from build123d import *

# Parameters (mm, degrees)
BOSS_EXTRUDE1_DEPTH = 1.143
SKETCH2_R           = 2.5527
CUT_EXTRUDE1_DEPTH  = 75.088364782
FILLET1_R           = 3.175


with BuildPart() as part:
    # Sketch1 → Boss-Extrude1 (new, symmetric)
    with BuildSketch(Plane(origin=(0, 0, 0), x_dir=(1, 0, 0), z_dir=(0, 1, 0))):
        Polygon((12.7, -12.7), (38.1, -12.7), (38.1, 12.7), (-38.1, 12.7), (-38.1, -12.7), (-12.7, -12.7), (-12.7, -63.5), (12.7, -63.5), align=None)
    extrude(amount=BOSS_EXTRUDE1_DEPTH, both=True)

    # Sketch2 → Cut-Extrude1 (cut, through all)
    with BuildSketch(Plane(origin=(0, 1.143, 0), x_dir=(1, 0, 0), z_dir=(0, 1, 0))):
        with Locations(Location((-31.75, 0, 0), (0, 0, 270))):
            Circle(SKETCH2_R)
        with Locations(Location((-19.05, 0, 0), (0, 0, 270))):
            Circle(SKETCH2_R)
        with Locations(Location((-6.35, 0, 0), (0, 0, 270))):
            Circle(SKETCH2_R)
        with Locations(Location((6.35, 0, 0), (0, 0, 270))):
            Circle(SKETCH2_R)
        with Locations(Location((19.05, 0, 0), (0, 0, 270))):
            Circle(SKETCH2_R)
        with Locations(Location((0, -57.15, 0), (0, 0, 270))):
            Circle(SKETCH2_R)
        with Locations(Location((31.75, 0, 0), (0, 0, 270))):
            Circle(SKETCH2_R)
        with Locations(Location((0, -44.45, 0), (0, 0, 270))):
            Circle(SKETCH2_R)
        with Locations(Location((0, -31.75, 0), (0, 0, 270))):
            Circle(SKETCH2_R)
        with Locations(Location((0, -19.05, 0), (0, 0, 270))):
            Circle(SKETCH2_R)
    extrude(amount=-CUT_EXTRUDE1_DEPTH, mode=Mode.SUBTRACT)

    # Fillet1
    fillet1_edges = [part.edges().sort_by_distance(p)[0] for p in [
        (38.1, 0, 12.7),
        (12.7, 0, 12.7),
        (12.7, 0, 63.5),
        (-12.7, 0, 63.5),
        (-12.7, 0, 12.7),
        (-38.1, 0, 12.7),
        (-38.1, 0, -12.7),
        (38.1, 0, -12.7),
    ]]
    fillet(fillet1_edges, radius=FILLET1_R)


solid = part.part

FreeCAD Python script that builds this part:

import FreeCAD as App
import Part
import Sketcher

V = App.Vector
Q = App.Units.Quantity


def edges_at(feature, points):
    """Names of the edges that pass closest to the given points."""
    edges = feature.Shape.Edges
    near = lambda p: min(range(len(edges)), key=lambda i: edges[i].distToShape(Part.Vertex(*p))[0])
    return sorted({f"Edge{near(p) + 1}" for p in points})

doc = App.newDocument("Part")
body = doc.addObject("PartDesign::Body", "Body")

# Sketch on XZ plane
sketch1 = doc.addObject("Sketcher::SketchObject", "Sketch")
body.addObject(sketch1)
sketch1.AttachmentSupport = (doc.XZ_Plane, [""])
sketch1.MapMode = "FlatFace"
sketch1.addGeometry([
    Part.LineSegment(V(13, 13, 0), V(38, 13, 0)),  # 0
    Part.LineSegment(V(38, 13, 0), V(38, -13, 0)),  # 1
    Part.LineSegment(V(38, -13, 0), V(-38, -13, 0)),  # 2
    Part.LineSegment(V(-38, -13, 0), V(-38, 13, 0)),  # 3
    Part.LineSegment(V(-38, 13, 0), V(-13, 13, 0)),  # 4
    Part.LineSegment(V(-13, 13, 0), V(-13, 64, 0)),  # 5
    Part.LineSegment(V(-13, 64, 0), V(13, 64, 0)),  # 6
    Part.LineSegment(V(13, 64, 0), V(13, 13, 0)),  # 7
], False)
sketch1.addConstraint([
    Sketcher.Constraint("Coincident", 0, 2, 1, 1),
    Sketcher.Constraint("Coincident", 1, 2, 2, 1),
    Sketcher.Constraint("Coincident", 2, 2, 3, 1),
    Sketcher.Constraint("Coincident", 3, 2, 4, 1),
    Sketcher.Constraint("Coincident", 4, 2, 5, 1),
    Sketcher.Constraint("Coincident", 5, 2, 6, 1),
    Sketcher.Constraint("Coincident", 6, 2, 7, 1),
    Sketcher.Constraint("Coincident", 7, 2, 0, 1),
    Sketcher.Constraint("Horizontal", 0),
    Sketcher.Constraint("Vertical", 1),
    Sketcher.Constraint("Horizontal", 2),
    Sketcher.Constraint("Vertical", 3),
    Sketcher.Constraint("Horizontal", 4),
    Sketcher.Constraint("Vertical", 5),
    Sketcher.Constraint("Horizontal", 6),
    Sketcher.Constraint("Vertical", 7),
    Sketcher.Constraint("Symmetric", 0, 2, 2, 2, -1, 1),
    Sketcher.Constraint("Symmetric", 4, 2, 7, 2, -2),
    Sketcher.Constraint("Equal", 4, 6),
    Sketcher.Constraint("Equal", 6, 1),
    Sketcher.Constraint("DistanceX", 0, 1, 0, 2, Q("1 in")),
    Sketcher.Constraint("DistanceY", 5, 1, 5, 2, Q("2 in")),
])
pad1 = doc.addObject("PartDesign::Pad", "Pad")
body.addObject(pad1)
pad1.Profile = sketch1
pad1.Length = Q("0.09 in")
pad1.Midplane = True

# Sketch on XZ plane
sketch2 = doc.addObject("Sketcher::SketchObject", "Sketch001")
body.addObject(sketch2)
sketch2.AttachmentSupport = (doc.XZ_Plane, [""])
sketch2.MapMode = "FlatFace"
sketch2.AttachmentOffset = App.Placement(V(0, 0, -0.045 * 25.4), App.Rotation())
sketch2.addGeometry([
    Part.Circle(V(-31.8, 0, 0), V(0, 0, 1), 2.6),  # 0
    Part.Circle(V(-19.1, 0, 0), V(0, 0, 1), 2.6),  # 1
    Part.Circle(V(-6.3, 0, 0), V(0, 0, 1), 2.6),  # 2
    Part.Circle(V(6.3, 0, 0), V(0, 0, 1), 2.6),  # 3
    Part.Circle(V(19.1, 0, 0), V(0, 0, 1), 2.6),  # 4
    Part.Circle(V(0, 57.1, 0), V(0, 0, 1), 2.6),  # 5
    Part.Circle(V(31.8, 0, 0), V(0, 0, 1), 2.6),  # 6
    Part.Circle(V(0, 44.5, 0), V(0, 0, 1), 2.6),  # 7
    Part.Circle(V(0, 31.8, 0), V(0, 0, 1), 2.6),  # 8
    Part.Circle(V(0, 19.1, 0), V(0, 0, 1), 2.6),  # 9
], False)
sketch2.addConstraint([
    Sketcher.Constraint("Equal", 0, 1),
    Sketcher.Constraint("Equal", 1, 2),
    Sketcher.Constraint("Equal", 2, 3),
    Sketcher.Constraint("Equal", 3, 4),
    Sketcher.Constraint("Equal", 4, 5),
    Sketcher.Constraint("Equal", 5, 6),
    Sketcher.Constraint("Equal", 6, 7),
    Sketcher.Constraint("Equal", 7, 8),
    Sketcher.Constraint("Equal", 8, 9),
    Sketcher.Constraint("Symmetric", 2, 3, 3, 3, -1, 1),
    Sketcher.Constraint("Symmetric", 1, 3, 4, 3, -1, 1),
    Sketcher.Constraint("Symmetric", 0, 3, 6, 3, -1, 1),
    Sketcher.Constraint("PointOnObject", 0, 3, -1),
    Sketcher.Constraint("PointOnObject", 1, 3, -1),
    Sketcher.Constraint("PointOnObject", 2, 3, -1),
    Sketcher.Constraint("PointOnObject", 5, 3, -2),
    Sketcher.Constraint("PointOnObject", 7, 3, -2),
    Sketcher.Constraint("PointOnObject", 8, 3, -2),
    Sketcher.Constraint("PointOnObject", 9, 3, -2),
    Sketcher.Constraint("Diameter", 0, Q("0.201 in")),
    Sketcher.Constraint("DistanceX", 0, 3, 2, 3, Q("1 in")),
    Sketcher.Constraint("DistanceX", 1, 3, 3, 3, Q("1 in")),
    Sketcher.Constraint("DistanceY", 8, 3, 5, 3, Q("1 in")),
    Sketcher.Constraint("DistanceY", 9, 3, 7, 3, Q("1 in")),
    Sketcher.Constraint("DistanceX", 0, 3, 1, 3, Q("0.5 in")),
    Sketcher.Constraint("DistanceY", 7, 3, 5, 3, Q("0.5 in")),
    Sketcher.Constraint("DistanceY", -1, 1, 5, 3, Q("2.25 in")),
])
pocket1 = doc.addObject("PartDesign::Pocket", "Pocket")
body.addObject(pocket1)
pocket1.Profile = sketch2
pocket1.Type = "ThroughAll"
pocket1.Reversed = True
doc.recompute()

fillet = doc.addObject("PartDesign::Fillet", "Fillet")
body.addObject(fillet)
fillet.Base = (pocket1, edges_at(pocket1, [
    (38.1, 0, 12.7),
    (12.7, 0, 12.7),
    (12.7, 0, 63.5),
    (-12.7, 0, 63.5),
    (-12.7, 0, 12.7),
    (-38.1, 0, 12.7),
    (-38.1, 0, -12.7),
    (38.1, 0, -12.7),
]))
fillet.Radius = Q("0.125 in")

doc.recompute()
